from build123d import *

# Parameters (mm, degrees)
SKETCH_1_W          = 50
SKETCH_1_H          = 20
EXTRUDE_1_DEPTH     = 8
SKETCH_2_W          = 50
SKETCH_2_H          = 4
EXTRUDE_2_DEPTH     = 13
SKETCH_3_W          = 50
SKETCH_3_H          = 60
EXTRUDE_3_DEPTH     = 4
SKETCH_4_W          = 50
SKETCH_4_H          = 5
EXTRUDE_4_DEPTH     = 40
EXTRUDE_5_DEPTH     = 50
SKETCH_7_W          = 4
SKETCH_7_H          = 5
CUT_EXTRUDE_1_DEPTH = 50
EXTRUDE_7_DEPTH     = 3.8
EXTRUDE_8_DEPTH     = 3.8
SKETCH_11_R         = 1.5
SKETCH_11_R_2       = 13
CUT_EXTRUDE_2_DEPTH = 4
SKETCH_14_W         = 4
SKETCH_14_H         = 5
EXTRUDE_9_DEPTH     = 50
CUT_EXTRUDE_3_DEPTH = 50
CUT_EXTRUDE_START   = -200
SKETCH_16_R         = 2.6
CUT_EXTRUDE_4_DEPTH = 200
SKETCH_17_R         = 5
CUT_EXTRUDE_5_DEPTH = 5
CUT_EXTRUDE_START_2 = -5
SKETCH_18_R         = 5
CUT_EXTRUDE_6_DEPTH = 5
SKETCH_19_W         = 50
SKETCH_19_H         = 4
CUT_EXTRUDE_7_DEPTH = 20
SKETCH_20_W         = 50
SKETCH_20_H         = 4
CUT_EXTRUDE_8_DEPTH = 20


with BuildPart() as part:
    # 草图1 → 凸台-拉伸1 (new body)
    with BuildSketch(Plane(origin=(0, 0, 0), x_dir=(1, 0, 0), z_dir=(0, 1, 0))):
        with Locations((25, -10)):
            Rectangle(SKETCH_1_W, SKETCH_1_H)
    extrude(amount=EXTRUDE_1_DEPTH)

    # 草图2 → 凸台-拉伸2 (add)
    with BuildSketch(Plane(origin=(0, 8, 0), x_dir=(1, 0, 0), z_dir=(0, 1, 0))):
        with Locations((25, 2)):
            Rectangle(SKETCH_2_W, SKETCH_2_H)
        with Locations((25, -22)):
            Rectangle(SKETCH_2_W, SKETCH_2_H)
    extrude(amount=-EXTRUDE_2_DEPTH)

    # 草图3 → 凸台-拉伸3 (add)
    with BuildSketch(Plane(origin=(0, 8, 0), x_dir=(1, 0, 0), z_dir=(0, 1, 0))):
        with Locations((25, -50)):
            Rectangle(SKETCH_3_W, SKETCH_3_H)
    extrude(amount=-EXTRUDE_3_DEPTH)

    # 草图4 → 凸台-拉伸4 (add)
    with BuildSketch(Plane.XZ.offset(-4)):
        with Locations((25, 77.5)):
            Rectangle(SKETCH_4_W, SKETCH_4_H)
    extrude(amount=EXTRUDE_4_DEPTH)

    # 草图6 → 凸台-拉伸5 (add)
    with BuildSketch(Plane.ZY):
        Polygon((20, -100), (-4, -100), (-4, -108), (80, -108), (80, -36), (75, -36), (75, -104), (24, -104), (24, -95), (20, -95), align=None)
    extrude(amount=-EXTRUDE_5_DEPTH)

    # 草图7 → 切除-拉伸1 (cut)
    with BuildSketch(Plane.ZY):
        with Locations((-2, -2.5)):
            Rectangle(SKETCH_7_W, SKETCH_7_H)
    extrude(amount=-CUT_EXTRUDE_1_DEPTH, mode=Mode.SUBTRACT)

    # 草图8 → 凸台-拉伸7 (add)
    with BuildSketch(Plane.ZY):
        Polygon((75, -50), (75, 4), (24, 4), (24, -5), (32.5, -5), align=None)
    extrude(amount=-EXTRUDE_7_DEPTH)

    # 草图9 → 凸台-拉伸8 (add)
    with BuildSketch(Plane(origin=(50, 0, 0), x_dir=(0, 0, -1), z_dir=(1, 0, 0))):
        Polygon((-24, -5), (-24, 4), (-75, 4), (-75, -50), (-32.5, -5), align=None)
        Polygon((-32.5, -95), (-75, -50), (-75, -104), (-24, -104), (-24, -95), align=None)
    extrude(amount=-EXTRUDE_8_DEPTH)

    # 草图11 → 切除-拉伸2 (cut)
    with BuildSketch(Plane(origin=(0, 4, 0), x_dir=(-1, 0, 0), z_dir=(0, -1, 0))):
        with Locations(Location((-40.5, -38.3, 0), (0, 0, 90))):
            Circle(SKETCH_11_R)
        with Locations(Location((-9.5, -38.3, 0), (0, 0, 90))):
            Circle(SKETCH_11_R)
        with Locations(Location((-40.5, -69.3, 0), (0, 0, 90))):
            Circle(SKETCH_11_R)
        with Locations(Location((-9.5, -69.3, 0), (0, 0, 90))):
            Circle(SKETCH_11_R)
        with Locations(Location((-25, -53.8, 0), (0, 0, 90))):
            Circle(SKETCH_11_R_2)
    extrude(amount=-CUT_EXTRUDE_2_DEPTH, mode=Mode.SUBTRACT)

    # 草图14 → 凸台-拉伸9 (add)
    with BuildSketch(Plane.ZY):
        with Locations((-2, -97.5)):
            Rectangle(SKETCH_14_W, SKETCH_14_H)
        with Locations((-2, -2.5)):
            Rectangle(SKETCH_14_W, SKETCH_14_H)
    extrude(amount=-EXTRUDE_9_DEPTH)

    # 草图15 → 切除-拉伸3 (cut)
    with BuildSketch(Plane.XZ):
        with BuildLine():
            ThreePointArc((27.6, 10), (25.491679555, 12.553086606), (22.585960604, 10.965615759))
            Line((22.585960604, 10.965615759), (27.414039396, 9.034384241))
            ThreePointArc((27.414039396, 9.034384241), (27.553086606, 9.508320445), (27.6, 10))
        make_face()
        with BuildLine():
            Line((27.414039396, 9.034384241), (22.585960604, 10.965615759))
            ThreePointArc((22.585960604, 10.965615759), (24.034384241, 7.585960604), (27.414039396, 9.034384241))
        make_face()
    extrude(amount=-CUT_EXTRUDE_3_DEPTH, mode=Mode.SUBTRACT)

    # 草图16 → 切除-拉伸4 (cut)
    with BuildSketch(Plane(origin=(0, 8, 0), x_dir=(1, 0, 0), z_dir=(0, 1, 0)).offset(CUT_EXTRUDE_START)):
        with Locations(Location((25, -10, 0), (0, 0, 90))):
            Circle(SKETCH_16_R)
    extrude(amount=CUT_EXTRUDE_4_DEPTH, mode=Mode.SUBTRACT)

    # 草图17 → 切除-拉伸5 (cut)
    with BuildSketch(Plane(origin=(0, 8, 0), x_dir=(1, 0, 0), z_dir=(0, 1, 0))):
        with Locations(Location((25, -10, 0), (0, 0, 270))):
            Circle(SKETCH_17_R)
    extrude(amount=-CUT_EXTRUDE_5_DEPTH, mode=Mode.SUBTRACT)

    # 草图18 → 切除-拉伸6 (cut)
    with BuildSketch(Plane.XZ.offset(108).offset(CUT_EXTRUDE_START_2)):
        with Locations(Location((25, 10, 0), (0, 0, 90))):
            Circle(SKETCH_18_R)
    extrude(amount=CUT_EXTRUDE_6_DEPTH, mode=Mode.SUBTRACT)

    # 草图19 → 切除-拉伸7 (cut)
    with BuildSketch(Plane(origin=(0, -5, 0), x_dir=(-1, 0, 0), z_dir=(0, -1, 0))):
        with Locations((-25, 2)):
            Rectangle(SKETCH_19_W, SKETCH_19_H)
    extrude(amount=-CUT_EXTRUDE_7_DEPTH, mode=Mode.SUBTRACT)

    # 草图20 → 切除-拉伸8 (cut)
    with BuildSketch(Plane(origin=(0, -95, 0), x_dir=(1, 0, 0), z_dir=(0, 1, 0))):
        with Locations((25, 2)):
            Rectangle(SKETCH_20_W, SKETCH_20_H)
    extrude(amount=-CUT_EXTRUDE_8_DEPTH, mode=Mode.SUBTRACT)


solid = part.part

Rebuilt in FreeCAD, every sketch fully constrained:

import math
import FreeCAD as App
import Part
import Sketcher

V = App.Vector

doc = App.newDocument("Part")
body = doc.addObject("PartDesign::Body", "Body")

sketch1 = body.newObject("Sketcher::SketchObject", "Sketch")
sketch1.AttachmentSupport = (doc.getObject("XZ_Plane"), [""])
sketch1.MapMode = "FlatFace"
sketch1.addGeometry([
    Part.LineSegment(V(0, 0, 0), V(0, 20, 0)),
    Part.LineSegment(V(0, 20, 0), V(50, 20, 0)),
    Part.LineSegment(V(50, 20, 0), V(50, 0, 0)),
    Part.LineSegment(V(50, 0, 0), V(0, 0, 0)),
], False)
sketch1.addConstraint([
    Sketcher.Constraint("Coincident", 0, 2, 1, 1),
    Sketcher.Constraint("Coincident", 1, 2, 2, 1),
    Sketcher.Constraint("Coincident", 2, 2, 3, 1),
    Sketcher.Constraint("Coincident", 3, 2, 0, 1),
    Sketcher.Constraint("Vertical", 0),
    Sketcher.Constraint("Horizontal", 1),
    Sketcher.Constraint("Vertical", 2),
    Sketcher.Constraint("Horizontal", 3),
    Sketcher.Constraint("Coincident", 3, 2, -1, 1),
    Sketcher.Constraint("DistanceX", 1, 1, 1, 2, 50.0),
    Sketcher.Constraint("DistanceY", 0, 1, 0, 2, 20.0),
])
pad1 = body.newObject("PartDesign::Pad", "Pad")
pad1.Profile = sketch1
pad1.Length = 8
pad1.Reversed = True

sketch2 = body.newObject("Sketcher::SketchObject", "Sketch001")
sketch2.AttachmentSupport = (doc.getObject("XZ_Plane"), [""])
sketch2.MapMode = "FlatFace"
sketch2.AttachmentOffset = App.Placement(V(0, 0, -8), App.Rotation())
sketch2.addGeometry([
    Part.LineSegment(V(0, -4, 0), V(0, 0, 0)),
    Part.LineSegment(V(0, 0, 0), V(50, 0, 0)),
    Part.LineSegment(V(50, 0, 0), V(50, -4, 0)),
    Part.LineSegment(V(50, -4, 0), V(0, -4, 0)),
    Part.LineSegment(V(0, 20, 0), V(0, 24, 0)),
    Part.LineSegment(V(0, 24, 0), V(50, 24, 0)),
    Part.LineSegment(V(50, 24, 0), V(50, 20, 0)),
    Part.LineSegment(V(50, 20, 0), V(0, 20, 0)),
], False)
sketch2.addConstraint([
    Sketcher.Constraint("Coincident", 0, 2, 1, 1),
    Sketcher.Constraint("Coincident", 1, 2, 2, 1),
    Sketcher.Constraint("Coincident", 2, 2, 3, 1),
    Sketcher.Constraint("Coincident", 3, 2, 0, 1),
    Sketcher.Constraint("Coincident", 4, 2, 5, 1),
    Sketcher.Constraint("Coincident", 5, 2, 6, 1),
    Sketcher.Constraint("Coincident", 6, 2, 7, 1),
    Sketcher.Constraint("Coincident", 7, 2, 4, 1),
    Sketcher.Constraint("Vertical", 0),
    Sketcher.Constraint("Horizontal", 1),
    Sketcher.Constraint("Vertical", 2),
    Sketcher.Constraint("Horizontal", 3),
    Sketcher.Constraint("Vertical", 4),
    Sketcher.Constraint("Horizontal", 5),
    Sketcher.Constraint("Vertical", 6),
    Sketcher.Constraint("Horizontal", 7),
    Sketcher.Constraint("Coincident", 0, 2, -1, 1),
    Sketcher.Constraint("PointOnObject", 4, 2, -2),
    Sketcher.Constraint("Vertical", 2, 2, 5, 2),
    Sketcher.Constraint("Equal", 2, 4),
    Sketcher.Constraint("DistanceX", 1, 1, 1, 2, 50.0),
    Sketcher.Constraint("DistanceY", 0, 1, 0, 2, 4.0),
    Sketcher.Constraint("DistanceY", -1, 1, 4, 2, 24.0),
])
pad2 = body.newObject("PartDesign::Pad", "Pad001")
pad2.Profile = sketch2
pad2.Length = 13

sketch3 = body.newObject("Sketcher::SketchObject", "Sketch002")
sketch3.AttachmentSupport = (doc.getObject("XZ_Plane"), [""])
sketch3.MapMode = "FlatFace"
sketch3.AttachmentOffset = App.Placement(V(0, 0, -8), App.Rotation())
sketch3.addGeometry([
    Part.LineSegment(V(0, 20, 0), V(0, 80, 0)),
    Part.LineSegment(V(0, 80, 0), V(50, 80, 0)),
    Part.LineSegment(V(50, 80, 0), V(50, 20, 0)),
    Part.LineSegment(V(50, 20, 0), V(0, 20, 0)),
], False)
sketch3.addConstraint([
    Sketcher.Constraint("Coincident", 0, 2, 1, 1),
    Sketcher.Constraint("Coincident", 1, 2, 2, 1),
    Sketcher.Constraint("Coincident", 2, 2, 3, 1),
    Sketcher.Constraint("Coincident", 3, 2, 0, 1),
    Sketcher.Constraint("Vertical", 0),
    Sketcher.Constraint("Horizontal", 1),
    Sketcher.Constraint("Vertical", 2),
    Sketcher.Constraint("Horizontal", 3),
    Sketcher.Constraint("PointOnObject", 0, 2, -2),
    Sketcher.Constraint("DistanceX", 1, 1, 1, 2, 50.0),
    Sketcher.Constraint("DistanceY", 0, 1, 0, 2, 60.0),
    Sketcher.Constraint("DistanceY", -1, 1, 0, 2, 80.0),
])
pad3 = body.newObject("PartDesign::Pad", "Pad002")
pad3.Profile = sketch3
pad3.Length = 4

sketch4 = body.newObject("Sketcher::SketchObject", "Sketch003")
sketch4.AttachmentSupport = (doc.getObject("XZ_Plane"), [""])
sketch4.MapMode = "FlatFace"
sketch4.AttachmentOffset = App.Placement(V(0, 0, -4), App.Rotation())
sketch4.addGeometry([
    Part.LineSegment(V(0, 80, 0), V(0, 75, 0)),
    Part.LineSegment(V(0, 75, 0), V(50, 75, 0)),
    Part.LineSegment(V(50, 75, 0), V(50, 80, 0)),
    Part.LineSegment(V(50, 80, 0), V(0, 80, 0)),
], False)
sketch4.addConstraint([
    Sketcher.Constraint("Coincident", 0, 2, 1, 1),
    Sketcher.Constraint("Coincident", 1, 2, 2, 1),
    Sketcher.Constraint("Coincident", 2, 2, 3, 1),
    Sketcher.Constraint("Coincident", 3, 2, 0, 1),
    Sketcher.Constraint("Vertical", 0),
    Sketcher.Constraint("Horizontal", 1),
    Sketcher.Constraint("Vertical", 2),
    Sketcher.Constraint("Horizontal", 3),
    Sketcher.Constraint("PointOnObject", 0, 2, -2),
    Sketcher.Constraint("DistanceX", 1, 1, 1, 2, 50.0),
    Sketcher.Constraint("DistanceY", 0, 2, 0, 1, 5.0),
    Sketcher.Constraint("DistanceY", -1, 1, 0, 2, 75.0),
])
pad4 = body.newObject("PartDesign::Pad", "Pad003")
pad4.Profile = sketch4
pad4.Length = 40

sketch5 = body.newObject("Sketcher::SketchObject", "Sketch004")
sketch5.AttachmentSupport = (doc.getObject("YZ_Plane"), [""])
sketch5.MapMode = "FlatFace"
sketch5.addGeometry([
    Part.LineSegment(V(-100, 20, 0), V(-100, -4, 0)),
    Part.LineSegment(V(-100, -4, 0), V(-108, -4, 0)),
    Part.LineSegment(V(-108, -4, 0), V(-108, 80, 0)),
    Part.LineSegment(V(-108, 80, 0), V(-36, 80, 0)),
    Part.LineSegment(V(-36, 80, 0), V(-36, 75, 0)),
    Part.LineSegment(V(-36, 75, 0), V(-104, 75, 0)),
    Part.LineSegment(V(-104, 75, 0), V(-104, 24, 0)),
    Part.LineSegment(V(-104, 24, 0), V(-95, 24, 0)),
    Part.LineSegment(V(-95, 24, 0), V(-95, 20, 0)),
    Part.LineSegment(V(-95, 20, 0), V(-100, 20, 0)),
], False)
sketch5.addConstraint([
    Sketcher.Constraint("Coincident", 0, 2, 1, 1),
    Sketcher.Constraint("Coincident", 1, 2, 2, 1),
    Sketcher.Constraint("Coincident", 2, 2, 3, 1),
    Sketcher.Constraint("Coincident", 3, 2, 4, 1),
    Sketcher.Constraint("Coincident", 4, 2, 5, 1),
    Sketcher.Constraint("Coincident", 5, 2, 6, 1),
    Sketcher.Constraint("Coincident", 6, 2, 7, 1),
    Sketcher.Constraint("Coincident", 7, 2, 8, 1),
    Sketcher.Constraint("Coincident", 8, 2, 9, 1),
    Sketcher.Constraint("Coincident", 9, 2, 0, 1),
    Sketcher.Constraint("Vertical", 0),
    Sketcher.Constraint("Horizontal", 1),
    Sketcher.Constraint("Vertical", 2),
    Sketcher.Constraint("Horizontal", 3),
    Sketcher.Constraint("Vertical", 4),
    Sketcher.Constraint("Horizontal", 5),
    Sketcher.Constraint("Vertical", 6),
    Sketcher.Constraint("Horizontal", 7),
    Sketcher.Constraint("Vertical", 8),
    Sketcher.Constraint("Horizontal", 9),
    Sketcher.Constraint("Equal", 9, 4),
    Sketcher.Constraint("DistanceX", 1, 2, 1, 1, 8.0),
    Sketcher.Constraint("DistanceX", 3, 1, 3, 2, 72.0),
    Sketcher.Constraint("DistanceX", 5, 2, 5, 1, 68.0),
    Sketcher.Constraint("DistanceX", 7, 1, 7, 2, 9.0),
    Sketcher.Constraint("DistanceY", 0, 2, 0, 1, 24.0),
    Sketcher.Constraint("DistanceY", 2, 1, 2, 2, 84.0),
    Sketcher.Constraint("DistanceY", 6, 2, 6, 1, 51.0),
    Sketcher.Constraint("DistanceX", 0, 2, -1, 1, 100.0),
    Sketcher.Constraint("DistanceY", 0, 2, -1, 1, 4.0),
])
pad5 = body.newObject("PartDesign::Pad", "Pad004")
pad5.Profile = sketch5
pad5.Length = 50

sketch6 = body.newObject("Sketcher::SketchObject", "Sketch005")
sketch6.AttachmentSupport = (doc.getObject("YZ_Plane"), [""])
sketch6.MapMode = "FlatFace"
sketch6.addGeometry([
    Part.LineSegment(V(0, -4, 0), V(-5, -4, 0)),
    Part.LineSegment(V(-5, -4, 0), V(-5, 0, 0)),
    Part.LineSegment(V(-5, 0, 0), V(0, 0, 0)),
    Part.LineSegment(V(0, 0, 0), V(0, -4, 0)),
], False)
sketch6.addConstraint([
    Sketcher.Constraint("Coincident", 0, 2, 1, 1),
    Sketcher.Constraint("Coincident", 1, 2, 2, 1),
    Sketcher.Constraint("Coincident", 2, 2, 3, 1),
    Sketcher.Constraint("Coincident", 3, 2, 0, 1),
    Sketcher.Constraint("Horizontal", 0),
    Sketcher.Constraint("Vertical", 1),
    Sketcher.Constraint("Horizontal", 2),
    Sketcher.Constraint("Vertical", 3),
    Sketcher.Constraint("Coincident", 2, 2, -1, 1),
    Sketcher.Constraint("DistanceX", 0, 2, 0, 1, 5.0),
    Sketcher.Constraint("DistanceY", 1, 1, 1, 2, 4.0),
])
pocket1 = body.newObject("PartDesign::Pocket", "Pocket")
pocket1.Profile = sketch6
pocket1.Length = 50
pocket1.Reversed = True

sketch7 = body.newObject("Sketcher::SketchObject", "Sketch006")
sketch7.AttachmentSupport = (doc.getObject("YZ_Plane"), [""])
sketch7.MapMode = "FlatFace"
sketch7.addGeometry([
    Part.LineSegment(V(-50, 75, 0), V(4, 75, 0)),
    Part.LineSegment(V(4, 75, 0), V(4, 24, 0)),
    Part.LineSegment(V(4, 24, 0), V(-5, 24, 0)),
    Part.LineSegment(V(-5, 24, 0), V(-5, 32, 0)),
    Part.LineSegment(V(-5, 32, 0), V(-50, 75, 0)),
], False)
sketch7.addConstraint([
    Sketcher.Constraint("Coincident", 0, 2, 1, 1),
    Sketcher.Constraint("Coincident", 1, 2, 2, 1),
    Sketcher.Constraint("Coincident", 2, 2, 3, 1),
    Sketcher.Constraint("Coincident", 3, 2, 4, 1),
    Sketcher.Constraint("Coincident", 4, 2, 0, 1),
    Sketcher.Constraint("Horizontal", 0),
    Sketcher.Constraint("Vertical", 1),
    Sketcher.Constraint("Horizontal", 2),
    Sketcher.Constraint("Vertical", 3),
    Sketcher.Constraint("DistanceX", 0, 1, 0, 2, 54.0),
    Sketcher.Constraint("DistanceX", 2, 2, 2, 1, 9.0),
    Sketcher.Constraint("DistanceY", 1, 2, 1, 1, 51.0),
    Sketcher.Constraint("DistanceY", 3, 1, 3, 2, 8.5),
    Sketcher.Constraint("DistanceX", -1, 1, 0, 2, 4.0),
    Sketcher.Constraint("DistanceY", -1, 1, 0, 2, 75.0),
])
pad6 = body.newObject("PartDesign::Pad", "Pad005")
pad6.Profile = sketch7
pad6.Length = 3.8

sketch8 = body.newObject("Sketcher::SketchObject", "Sketch007")
sketch8.AttachmentSupport = (doc.getObject("YZ_Plane"), [""])
sketch8.MapMode = "FlatFace"
sketch8.AttachmentOffset = App.Placement(V(0, 0, 50), App.Rotation())
sketch8.addGeometry([
    Part.LineSegment(V(-5, 24, 0), V(4, 24, 0)),
    Part.LineSegment(V(4, 24, 0), V(4, 75, 0)),
    Part.LineSegment(V(4, 75, 0), V(-50, 75, 0)),
    Part.LineSegment(V(-50, 75, 0), V(-5, 32, 0)),
    Part.LineSegment(V(-5, 32, 0), V(-5, 24, 0)),
    Part.LineSegment(V(-95, 32, 0), V(-50, 75, 0)),
    Part.LineSegment(V(-50, 75, 0), V(-104, 75, 0)),
    Part.LineSegment(V(-104, 75, 0), V(-104, 24, 0)),
    Part.LineSegment(V(-104, 24, 0), V(-95, 24, 0)),
    Part.LineSegment(V(-95, 24, 0), V(-95, 32, 0)),
], False)
sketch8.addConstraint([
    Sketcher.Constraint("Coincident", 0, 2, 1, 1),
    Sketcher.Constraint("Coincident", 1, 2, 2, 1),
    Sketcher.Constraint("Coincident", 2, 2, 3, 1),
    Sketcher.Constraint("Coincident", 3, 2, 4, 1),
    Sketcher.Constraint("Coincident", 4, 2, 0, 1),
    Sketcher.Constraint("Coincident", 5, 2, 6, 1),
    Sketcher.Constraint("Coincident", 6, 2, 7, 1),
    Sketcher.Constraint("Coincident", 7, 2, 8, 1),
    Sketcher.Constraint("Coincident", 8, 2, 9, 1),
    Sketcher.Constraint("Coincident", 9, 2, 5, 1),
    Sketcher.Constraint("Horizontal", 0),
    Sketcher.Constraint("Vertical", 1),
    Sketcher.Constraint("Horizontal", 2),
    Sketcher.Constraint("Vertical", 4),
    Sketcher.Constraint("Horizontal", 6),
    Sketcher.Constraint("Vertical", 7),
    Sketcher.Constraint("Horizontal", 8),
    Sketcher.Constraint("Vertical", 9),
    Sketcher.Constraint("Coincident", 5, 2, 2, 2),
    Sketcher.Constraint("Horizontal", 4, 2, 7, 2),
    Sketcher.Constraint("Horizontal", 3, 2, 9, 2),
    Sketcher.Constraint("Equal", 2, 6),
    Sketcher.Constraint("Equal", 0, 8),
    Sketcher.Constraint("DistanceX", 0, 1, 0, 2, 9.0),
    Sketcher.Constraint("DistanceX", 2, 2, 2, 1, 54.0),
    Sketcher.Constraint("DistanceY", 1, 1, 1, 2, 51.0),
    Sketcher.Constraint("DistanceY", 4, 2, 4, 1, 8.5),
    Sketcher.Constraint("DistanceX", -1, 1, 0, 2, 4.0),
    Sketcher.Constraint("DistanceY", -1, 1, 0, 2, 24.0),
])
pad7 = body.newObject("PartDesign::Pad", "Pad006")
pad7.Profile = sketch8
pad7.Length = 3.8
pad7.Reversed = True

sketch9 = body.newObject("Sketcher::SketchObject", "Sketch008")
sketch9.AttachmentSupport = (doc.getObject("XZ_Plane"), [""])
sketch9.MapMode = "FlatFace"
sketch9.AttachmentOffset = App.Placement(V(0, 0, -4), App.Rotation())
sketch9.addGeometry([
    Part.Circle(V(40.5, 38.3, 0), V(0, 0, 1), 1.5),
    Part.Circle(V(9.5, 38.3, 0), V(0, 0, 1), 1.5),
    Part.Circle(V(40.5, 69.3, 0), V(0, 0, 1), 1.5),
    Part.Circle(V(9.5, 69.3, 0), V(0, 0, 1), 1.5),
    Part.Circle(V(25, 53.8, 0), V(0, 0, 1), 13),
], False)
sketch9.addConstraint([
    Sketcher.Constraint("Equal", 0, 1),
    Sketcher.Constraint("Equal", 1, 2),
    Sketcher.Constraint("Equal", 2, 3),
    Sketcher.Constraint("Horizontal", 0, 3, 1, 3),
    Sketcher.Constraint("Horizontal", 2, 3, 3, 3),
    Sketcher.Constraint("Vertical", 0, 3, 2, 3),
    Sketcher.Constraint("Vertical", 1, 3, 3, 3),
    Sketcher.Constraint("Diameter", 0, 3.0),
    Sketcher.Constraint("Diameter", 4, 26.0),
    Sketcher.Constraint("DistanceX", -1, 1, 4, 3, 25.0),
    Sketcher.Constraint("DistanceX", 1, 3, 0, 3, 31.0),
    Sketcher.Constraint("DistanceY", 0, 3, 2, 3, 31.0),
    Sketcher.Constraint("DistanceX", -1, 1, 0, 3, 40.5),
    Sketcher.Constraint("DistanceY", -1, 1, 0, 3, 38.3),
    Sketcher.Constraint("DistanceY", -1, 1, 4, 3, 53.8),
])
pocket2 = body.newObject("PartDesign::Pocket", "Pocket001")
pocket2.Profile = sketch9
pocket2.Length = 4

sketch10 = body.newObject("Sketcher::SketchObject", "Sketch009")
sketch10.AttachmentSupport = (doc.getObject("YZ_Plane"), [""])
sketch10.MapMode = "FlatFace"
sketch10.addGeometry([
    Part.LineSegment(V(-95, -4, 0), V(-100, -4, 0)),
    Part.LineSegment(V(-100, -4, 0), V(-100, 0, 0)),
    Part.LineSegment(V(-100, 0, 0), V(-95, 0, 0)),
    Part.LineSegment(V(-95, 0, 0), V(-95, -4, 0)),
    Part.LineSegment(V(0, -4, 0), V(-5, -4, 0)),
    Part.LineSegment(V(-5, -4, 0), V(-5, 0, 0)),
    Part.LineSegment(V(-5, 0, 0), V(0, 0, 0)),
    Part.LineSegment(V(0, 0, 0), V(0, -4, 0)),
], False)
sketch10.addConstraint([
    Sketcher.Constraint("Coincident", 0, 2, 1, 1),
    Sketcher.Constraint("Coincident", 1, 2, 2, 1),
    Sketcher.Constraint("Coincident", 2, 2, 3, 1),
    Sketcher.Constraint("Coincident", 3, 2, 0, 1),
    Sketcher.Constraint("Coincident", 4, 2, 5, 1),
    Sketcher.Constraint("Coincident", 5, 2, 6, 1),
    Sketcher.Constraint("Coincident", 6, 2, 7, 1),
    Sketcher.Constraint("Coincident", 7, 2, 4, 1),
    Sketcher.Constraint("Horizontal", 0),
    Sketcher.Constraint("Vertical", 1),
    Sketcher.Constraint("Horizontal", 2),
    Sketcher.Constraint("Vertical", 3),
    Sketcher.Constraint("Horizontal", 4),
    Sketcher.Constraint("Vertical", 5),
    Sketcher.Constraint("Horizontal", 6),
    Sketcher.Constraint("Vertical", 7),
    Sketcher.Constraint("Coincident", 6, 2, -1, 1),
    Sketcher.Constraint("PointOnObject", 1, 2, -1),
    Sketcher.Constraint("Horizontal", 3, 2, 4, 2),
    Sketcher.Constraint("Equal", 2, 4),
    Sketcher.Constraint("DistanceX", 0, 2, 0, 1, 5.0),
    Sketcher.Constraint("DistanceY", 1, 1, 1, 2, 4.0),
    Sketcher.Constraint("DistanceX", 0, 2, -1, 1, 100.0),
])
pad8 = body.newObject("PartDesign::Pad", "Pad007")
pad8.Profile = sketch10
pad8.Length = 50

sketch11 = body.newObject("Sketcher::SketchObject", "Sketch010")
sketch11.AttachmentSupport = (doc.getObject("XZ_Plane"), [""])
sketch11.MapMode = "FlatFace"
sketch11.addGeometry([
    Part.ArcOfCircle(Part.Circle(V(25, 10, 0), V(0, 0, 1), 2.6), math.radians(0), math.radians(158)),
    Part.ArcOfCircle(Part.Circle(V(25, 10, 0), V(0, 0, 1), 2.6), math.radians(158), math.radians(338)),
    Part.ArcOfCircle(Part.Circle(V(25, 10, 0), V(0, 0, 1), 2.6), math.radians(-22), math.radians(0)),
], False)
sketch11.addConstraint([
    Sketcher.Constraint("Tangent", 0, 2, 1, 1),
    Sketcher.Constraint("Tangent", 1, 2, 2, 1),
    Sketcher.Constraint("Tangent", 2, 2, 0, 1),
    Sketcher.Constraint("Horizontal", 1, 3, 2, 2),
    Sketcher.Constraint("Radius", 0, 2.6),
    Sketcher.Constraint("DistanceX", -1, 1, 0, 3, 25.0),
    Sketcher.Constraint("DistanceY", -1, 1, 0, 3, 10.0),
    Sketcher.Constraint("DistanceX", -1, 1, 0, 2, 22.585961),
    Sketcher.Constraint("DistanceX", -1, 1, 1, 2, 27.414039),
])
pocket3 = body.newObject("PartDesign::Pocket", "Pocket002")
pocket3.Profile = sketch11
pocket3.Length = 50

sketch12 = body.newObject("Sketcher::SketchObject", "Sketch011")
sketch12.AttachmentSupport = (doc.getObject("XZ_Plane"), [""])
sketch12.MapMode = "FlatFace"
sketch12.AttachmentOffset = App.Placement(V(0, 0, 192), App.Rotation())
sketch12.addGeometry(Part.Circle(V(25, 10, 0), V(0, 0, 1), 2.6), False)
sketch12.addConstraint([
    Sketcher.Constraint("Diameter", 0, 5.2),
    Sketcher.Constraint("DistanceX", -1, 1, 0, 3, 25.0),
    Sketcher.Constraint("DistanceY", -1, 1, 0, 3, 10.0),
])
pocket4 = body.newObject("PartDesign::Pocket", "Pocket003")
pocket4.Profile = sketch12
pocket4.Length = 200

sketch13 = body.newObject("Sketcher::SketchObject", "Sketch012")
sketch13.AttachmentSupport = (doc.getObject("XZ_Plane"), [""])
sketch13.MapMode = "FlatFace"
sketch13.AttachmentOffset = App.Placement(V(0, 0, -8), App.Rotation())
sketch13.addGeometry(Part.Circle(V(25, 10, 0), V(0, 0, 1), 5), False)
sketch13.addConstraint([
    Sketcher.Constraint("Diameter", 0, 10.0),
    Sketcher.Constraint("DistanceX", -1, 1, 0, 3, 25.0),
    Sketcher.Constraint("DistanceY", -1, 1, 0, 3, 10.0),
])
pocket5 = body.newObject("PartDesign::Pocket", "Pocket004")
pocket5.Profile = sketch13
pocket5.Length = 5
pocket5.Reversed = True

sketch14 = body.newObject("Sketcher::SketchObject", "Sketch013")
sketch14.AttachmentSupport = (doc.getObject("XZ_Plane"), [""])
sketch14.MapMode = "FlatFace"
sketch14.AttachmentOffset = App.Placement(V(0, 0, 103), App.Rotation())
sketch14.addGeometry(Part.Circle(V(25, 10, 0), V(0, 0, 1), 5), False)
sketch14.addConstraint([
    Sketcher.Constraint("Diameter", 0, 10.0),
    Sketcher.Constraint("DistanceX", -1, 1, 0, 3, 25.0),
    Sketcher.Constraint("DistanceY", -1, 1, 0, 3, 10.0),
])
pocket6 = body.newObject("PartDesign::Pocket", "Pocket005")
pocket6.Profile = sketch14
pocket6.Length = 5
pocket6.Reversed = True

sketch15 = body.newObject("Sketcher::SketchObject", "Sketch014")
sketch15.AttachmentSupport = (doc.getObject("XZ_Plane"), [""])
sketch15.MapMode = "FlatFace"
sketch15.AttachmentOffset = App.Placement(V(0, 0, 5), App.Rotation())
sketch15.addGeometry([
    Part.LineSegment(V(50, -4, 0), V(50, 0, 0)),
    Part.LineSegment(V(50, 0, 0), V(0, 0, 0)),
    Part.LineSegment(V(0, 0, 0), V(0, -4, 0)),
    Part.LineSegment(V(0, -4, 0), V(50, -4, 0)),
], False)
sketch15.addConstraint([
    Sketcher.Constraint("Coincident", 0, 2, 1, 1),
    Sketcher.Constraint("Coincident", 1, 2, 2, 1),
    Sketcher.Constraint("Coincident", 2, 2, 3, 1),
    Sketcher.Constraint("Coincident", 3, 2, 0, 1),
    Sketcher.Constraint("Vertical", 0),
    Sketcher.Constraint("Horizontal", 1),
    Sketcher.Constraint("Vertical", 2),
    Sketcher.Constraint("Horizontal", 3),
    Sketcher.Constraint("Coincident", 1, 2, -1, 1),
    Sketcher.Constraint("DistanceX", 1, 2, 1, 1, 50.0),
    Sketcher.Constraint("DistanceY", 0, 1, 0, 2, 4.0),
])
pocket7 = body.newObject("PartDesign::Pocket", "Pocket006")
pocket7.Profile = sketch15
pocket7.Length = 20

sketch16 = body.newObject("Sketcher::SketchObject", "Sketch015")
sketch16.AttachmentSupport = (doc.getObject("XZ_Plane"), [""])
sketch16.MapMode = "FlatFace"
sketch16.AttachmentOffset = App.Placement(V(0, 0, 95), App.Rotation())
sketch16.addGeometry([
    Part.LineSegment(V(0, -4, 0), V(0, 0, 0)),
    Part.LineSegment(V(0, 0, 0), V(50, 0, 0)),
    Part.LineSegment(V(50, 0, 0), V(50, -4, 0)),
    Part.LineSegment(V(50, -4, 0), V(0, -4, 0)),
], False)
sketch16.addConstraint([
    Sketcher.Constraint("Coincident", 0, 2, 1, 1),
    Sketcher.Constraint("Coincident", 1, 2, 2, 1),
    Sketcher.Constraint("Coincident", 2, 2, 3, 1),
    Sketcher.Constraint("Coincident", 3, 2, 0, 1),
    Sketcher.Constraint("Vertical", 0),
    Sketcher.Constraint("Horizontal", 1),
    Sketcher.Constraint("Vertical", 2),
    Sketcher.Constraint("Horizontal", 3),
    Sketcher.Constraint("Coincident", 0, 2, -1, 1),
    Sketcher.Constraint("DistanceX", 1, 1, 1, 2, 50.0),
    Sketcher.Constraint("DistanceY", 0, 1, 0, 2, 4.0),
])
pocket8 = body.newObject("PartDesign::Pocket", "Pocket007")
pocket8.Profile = sketch16
pocket8.Length = 20
pocket8.Reversed = True

doc.recompute()
